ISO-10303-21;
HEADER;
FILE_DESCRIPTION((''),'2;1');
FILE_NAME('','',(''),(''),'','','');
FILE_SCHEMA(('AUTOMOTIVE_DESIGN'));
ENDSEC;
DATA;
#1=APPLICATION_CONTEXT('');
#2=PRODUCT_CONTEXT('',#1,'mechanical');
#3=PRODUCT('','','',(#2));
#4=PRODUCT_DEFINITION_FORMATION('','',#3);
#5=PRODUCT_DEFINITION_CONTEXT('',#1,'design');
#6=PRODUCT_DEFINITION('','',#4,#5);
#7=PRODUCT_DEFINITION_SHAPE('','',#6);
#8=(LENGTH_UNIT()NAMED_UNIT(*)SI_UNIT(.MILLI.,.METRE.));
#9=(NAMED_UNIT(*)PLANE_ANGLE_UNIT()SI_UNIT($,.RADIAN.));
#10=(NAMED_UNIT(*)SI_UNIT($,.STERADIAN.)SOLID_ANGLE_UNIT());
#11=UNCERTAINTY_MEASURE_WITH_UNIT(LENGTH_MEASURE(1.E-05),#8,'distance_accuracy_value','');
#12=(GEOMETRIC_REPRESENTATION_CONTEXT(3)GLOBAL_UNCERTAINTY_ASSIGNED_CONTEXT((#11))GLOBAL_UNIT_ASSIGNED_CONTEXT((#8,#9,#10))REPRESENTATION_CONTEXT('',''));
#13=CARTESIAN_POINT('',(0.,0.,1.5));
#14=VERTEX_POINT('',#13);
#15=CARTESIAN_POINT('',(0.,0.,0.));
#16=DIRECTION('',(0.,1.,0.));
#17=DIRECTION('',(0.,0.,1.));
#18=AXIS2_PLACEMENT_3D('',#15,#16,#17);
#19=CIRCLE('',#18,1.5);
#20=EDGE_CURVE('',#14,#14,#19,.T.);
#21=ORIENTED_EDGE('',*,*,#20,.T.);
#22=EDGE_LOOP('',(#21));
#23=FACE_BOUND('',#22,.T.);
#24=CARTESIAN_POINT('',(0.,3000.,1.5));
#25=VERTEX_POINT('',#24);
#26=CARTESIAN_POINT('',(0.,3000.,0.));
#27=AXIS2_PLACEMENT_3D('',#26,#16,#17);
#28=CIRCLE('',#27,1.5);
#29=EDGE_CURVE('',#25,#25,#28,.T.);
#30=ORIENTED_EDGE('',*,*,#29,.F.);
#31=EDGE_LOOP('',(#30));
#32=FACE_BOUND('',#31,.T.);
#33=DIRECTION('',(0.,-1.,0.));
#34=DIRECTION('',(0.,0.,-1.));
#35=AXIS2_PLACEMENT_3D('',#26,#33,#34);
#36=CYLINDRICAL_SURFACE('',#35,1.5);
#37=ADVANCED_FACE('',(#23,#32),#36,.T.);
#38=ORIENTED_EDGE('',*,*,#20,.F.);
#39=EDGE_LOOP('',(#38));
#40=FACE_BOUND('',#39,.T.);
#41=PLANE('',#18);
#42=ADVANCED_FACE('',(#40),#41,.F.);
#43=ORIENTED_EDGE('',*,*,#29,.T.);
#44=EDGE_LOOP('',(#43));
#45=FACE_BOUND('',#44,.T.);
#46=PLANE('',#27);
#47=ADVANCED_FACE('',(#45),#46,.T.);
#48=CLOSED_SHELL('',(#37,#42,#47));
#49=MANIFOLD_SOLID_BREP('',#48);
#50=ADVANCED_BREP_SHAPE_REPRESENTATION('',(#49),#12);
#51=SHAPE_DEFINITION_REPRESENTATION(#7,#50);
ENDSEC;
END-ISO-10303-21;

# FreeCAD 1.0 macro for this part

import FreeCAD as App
import Part
import Sketcher
Q = App.Units.Quantity

doc = App.newDocument("Part")
body = doc.addObject("PartDesign::Body", "Body")

# Sketch on XZ plane
sketch1 = body.newObject("Sketcher::SketchObject", "Sketch")
sketch1.AttachmentSupport = (doc.getObject("XZ_Plane"), [""])
sketch1.MapMode = "FlatFace"
sketch1.addGeometry(Part.Circle(App.Vector(0, 0, 0), App.Vector(0, 0, 1), 1.5), False)
sketch1.addConstraint([
    Sketcher.Constraint("Coincident", 0, 3, -1, 1),
    Sketcher.Constraint("Diameter", 0, Q("3 mm")),
])
pad1 = body.newObject("PartDesign::Pad", "Pad")
pad1.Profile = sketch1
pad1.Length = 3000
pad1.Reversed = True

doc.recompute()
